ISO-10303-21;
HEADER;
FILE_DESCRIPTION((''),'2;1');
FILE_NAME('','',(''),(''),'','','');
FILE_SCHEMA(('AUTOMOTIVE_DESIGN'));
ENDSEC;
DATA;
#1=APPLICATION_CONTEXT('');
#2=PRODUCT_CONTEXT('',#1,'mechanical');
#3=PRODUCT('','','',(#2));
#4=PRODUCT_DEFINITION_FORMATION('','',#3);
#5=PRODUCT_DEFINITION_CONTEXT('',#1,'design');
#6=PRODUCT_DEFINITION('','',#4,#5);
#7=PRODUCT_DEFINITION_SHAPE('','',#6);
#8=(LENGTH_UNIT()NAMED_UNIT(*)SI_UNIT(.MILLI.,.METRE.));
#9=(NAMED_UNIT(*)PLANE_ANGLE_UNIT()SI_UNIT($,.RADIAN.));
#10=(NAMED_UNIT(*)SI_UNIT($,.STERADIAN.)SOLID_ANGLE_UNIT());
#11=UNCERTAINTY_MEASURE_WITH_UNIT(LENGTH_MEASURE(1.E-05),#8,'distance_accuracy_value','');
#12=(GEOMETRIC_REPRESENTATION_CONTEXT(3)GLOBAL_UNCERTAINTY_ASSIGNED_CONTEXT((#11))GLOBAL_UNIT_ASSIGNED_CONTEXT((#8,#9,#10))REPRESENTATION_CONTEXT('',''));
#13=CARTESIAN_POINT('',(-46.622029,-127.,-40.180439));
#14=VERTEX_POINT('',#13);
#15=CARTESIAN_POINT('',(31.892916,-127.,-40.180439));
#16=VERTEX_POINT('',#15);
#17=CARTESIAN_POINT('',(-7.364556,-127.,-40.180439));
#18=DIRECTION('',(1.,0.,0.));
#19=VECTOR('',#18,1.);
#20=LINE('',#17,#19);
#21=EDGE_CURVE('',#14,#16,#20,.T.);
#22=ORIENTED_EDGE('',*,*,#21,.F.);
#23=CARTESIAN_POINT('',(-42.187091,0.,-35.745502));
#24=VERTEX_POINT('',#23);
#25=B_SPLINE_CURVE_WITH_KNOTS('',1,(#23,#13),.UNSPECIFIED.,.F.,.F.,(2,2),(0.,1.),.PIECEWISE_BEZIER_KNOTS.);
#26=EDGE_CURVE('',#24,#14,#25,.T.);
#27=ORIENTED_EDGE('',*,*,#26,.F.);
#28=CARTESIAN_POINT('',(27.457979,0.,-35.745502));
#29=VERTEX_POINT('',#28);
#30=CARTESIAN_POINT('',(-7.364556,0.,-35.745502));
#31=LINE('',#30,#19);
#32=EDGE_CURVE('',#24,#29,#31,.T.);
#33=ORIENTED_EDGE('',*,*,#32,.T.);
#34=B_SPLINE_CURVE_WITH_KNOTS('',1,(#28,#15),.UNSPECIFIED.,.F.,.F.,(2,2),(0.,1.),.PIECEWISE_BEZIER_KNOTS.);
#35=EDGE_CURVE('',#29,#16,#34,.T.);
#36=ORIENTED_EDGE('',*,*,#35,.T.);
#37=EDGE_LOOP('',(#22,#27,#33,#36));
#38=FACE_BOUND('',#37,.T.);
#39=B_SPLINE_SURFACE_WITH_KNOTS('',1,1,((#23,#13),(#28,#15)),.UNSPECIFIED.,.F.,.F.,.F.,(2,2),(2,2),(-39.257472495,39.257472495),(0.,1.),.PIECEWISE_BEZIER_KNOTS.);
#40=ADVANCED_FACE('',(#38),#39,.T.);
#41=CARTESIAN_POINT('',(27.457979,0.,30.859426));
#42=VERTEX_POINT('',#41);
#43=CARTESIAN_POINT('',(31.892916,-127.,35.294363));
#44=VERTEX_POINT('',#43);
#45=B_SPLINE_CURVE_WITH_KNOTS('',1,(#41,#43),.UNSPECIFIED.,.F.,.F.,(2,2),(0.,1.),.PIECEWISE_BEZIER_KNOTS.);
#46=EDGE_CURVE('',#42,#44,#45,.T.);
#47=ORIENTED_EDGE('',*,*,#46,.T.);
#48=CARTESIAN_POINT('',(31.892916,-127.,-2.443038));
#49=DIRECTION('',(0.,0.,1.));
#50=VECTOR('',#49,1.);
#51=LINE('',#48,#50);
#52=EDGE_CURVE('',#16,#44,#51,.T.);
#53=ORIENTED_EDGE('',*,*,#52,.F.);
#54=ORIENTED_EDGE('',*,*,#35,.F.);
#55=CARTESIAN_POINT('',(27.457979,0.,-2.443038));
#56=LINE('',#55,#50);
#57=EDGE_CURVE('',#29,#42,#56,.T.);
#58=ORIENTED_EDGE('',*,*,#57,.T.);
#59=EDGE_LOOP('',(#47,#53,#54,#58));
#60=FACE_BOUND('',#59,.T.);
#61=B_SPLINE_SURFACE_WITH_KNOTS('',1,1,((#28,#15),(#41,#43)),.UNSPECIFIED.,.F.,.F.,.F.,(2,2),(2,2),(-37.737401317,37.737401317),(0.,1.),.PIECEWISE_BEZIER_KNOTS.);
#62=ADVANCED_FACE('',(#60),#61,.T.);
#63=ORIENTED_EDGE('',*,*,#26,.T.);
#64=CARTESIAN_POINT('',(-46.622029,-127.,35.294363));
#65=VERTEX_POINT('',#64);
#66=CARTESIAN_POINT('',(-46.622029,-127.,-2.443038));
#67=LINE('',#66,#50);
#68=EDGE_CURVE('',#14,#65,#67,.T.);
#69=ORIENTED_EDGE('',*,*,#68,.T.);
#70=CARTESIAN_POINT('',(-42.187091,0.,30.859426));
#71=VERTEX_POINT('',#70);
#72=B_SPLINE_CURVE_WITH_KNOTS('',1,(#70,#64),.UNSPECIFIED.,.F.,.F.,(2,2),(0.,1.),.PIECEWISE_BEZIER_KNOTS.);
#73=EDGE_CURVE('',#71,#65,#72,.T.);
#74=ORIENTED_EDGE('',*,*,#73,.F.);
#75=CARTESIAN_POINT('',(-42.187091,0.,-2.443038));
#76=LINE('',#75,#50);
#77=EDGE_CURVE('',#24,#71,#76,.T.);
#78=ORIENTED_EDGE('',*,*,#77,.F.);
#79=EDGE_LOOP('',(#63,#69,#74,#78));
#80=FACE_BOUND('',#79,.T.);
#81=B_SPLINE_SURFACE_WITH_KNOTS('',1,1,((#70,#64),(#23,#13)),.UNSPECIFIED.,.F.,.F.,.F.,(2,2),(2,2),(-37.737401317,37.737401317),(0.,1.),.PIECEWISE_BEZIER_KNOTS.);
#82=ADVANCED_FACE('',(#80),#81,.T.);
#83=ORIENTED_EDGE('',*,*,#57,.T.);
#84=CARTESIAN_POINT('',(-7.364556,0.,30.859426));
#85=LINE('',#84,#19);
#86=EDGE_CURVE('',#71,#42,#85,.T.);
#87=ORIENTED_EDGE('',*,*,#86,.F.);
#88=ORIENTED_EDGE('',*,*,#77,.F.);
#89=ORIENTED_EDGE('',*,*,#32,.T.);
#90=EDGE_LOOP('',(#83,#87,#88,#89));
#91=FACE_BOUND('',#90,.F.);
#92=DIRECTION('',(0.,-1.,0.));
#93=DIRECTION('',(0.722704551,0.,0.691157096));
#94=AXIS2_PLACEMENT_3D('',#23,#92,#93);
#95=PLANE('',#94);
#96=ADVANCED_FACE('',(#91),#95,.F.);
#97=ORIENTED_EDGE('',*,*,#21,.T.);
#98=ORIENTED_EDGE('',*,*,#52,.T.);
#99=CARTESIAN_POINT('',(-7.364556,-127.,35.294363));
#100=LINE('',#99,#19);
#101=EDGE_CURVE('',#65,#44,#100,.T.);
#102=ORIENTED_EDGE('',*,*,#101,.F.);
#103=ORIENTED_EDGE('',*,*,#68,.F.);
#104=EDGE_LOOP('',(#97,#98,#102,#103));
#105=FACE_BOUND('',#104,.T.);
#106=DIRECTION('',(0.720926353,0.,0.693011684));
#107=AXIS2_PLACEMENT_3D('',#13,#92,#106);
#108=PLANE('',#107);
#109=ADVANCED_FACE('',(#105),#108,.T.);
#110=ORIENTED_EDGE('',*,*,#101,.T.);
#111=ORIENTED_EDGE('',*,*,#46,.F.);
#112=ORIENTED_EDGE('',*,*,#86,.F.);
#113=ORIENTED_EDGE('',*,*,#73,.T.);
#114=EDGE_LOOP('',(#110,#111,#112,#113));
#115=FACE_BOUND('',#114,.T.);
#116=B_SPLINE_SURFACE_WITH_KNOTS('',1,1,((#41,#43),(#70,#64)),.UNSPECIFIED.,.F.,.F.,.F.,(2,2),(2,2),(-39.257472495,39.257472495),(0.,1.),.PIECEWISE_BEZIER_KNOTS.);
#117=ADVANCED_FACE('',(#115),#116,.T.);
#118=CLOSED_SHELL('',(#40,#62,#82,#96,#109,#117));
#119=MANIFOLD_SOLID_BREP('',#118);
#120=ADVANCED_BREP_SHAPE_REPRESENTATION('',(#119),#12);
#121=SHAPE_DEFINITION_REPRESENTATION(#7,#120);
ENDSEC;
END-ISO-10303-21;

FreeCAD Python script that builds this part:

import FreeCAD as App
import Part
import Sketcher
Q = App.Units.Quantity

doc = App.newDocument("Part")
body = doc.addObject("PartDesign::Body", "Body")

# Sketch on XZ plane
sketch1 = body.newObject("Sketcher::SketchObject", "Sketch")
sketch1.AttachmentSupport = (doc.getObject("XZ_Plane"), [""])
sketch1.MapMode = "FlatFace"
sketch1.addGeometry([
    Part.LineSegment(App.Vector(-42, 31, 0), App.Vector(-42, -36, 0)),
    Part.LineSegment(App.Vector(-42, -36, 0), App.Vector(27, -36, 0)),
    Part.LineSegment(App.Vector(27, -36, 0), App.Vector(27, 31, 0)),
    Part.LineSegment(App.Vector(27, 31, 0), App.Vector(-42, 31, 0)),
], False)
sketch1.addConstraint([
    Sketcher.Constraint("Coincident", 0, 2, 1, 1),
    Sketcher.Constraint("Coincident", 1, 2, 2, 1),
    Sketcher.Constraint("Coincident", 2, 2, 3, 1),
    Sketcher.Constraint("Coincident", 3, 2, 0, 1),
    Sketcher.Constraint("Vertical", 0),
    Sketcher.Constraint("Horizontal", 1),
    Sketcher.Constraint("Vertical", 2),
    Sketcher.Constraint("Horizontal", 3),
    Sketcher.Constraint("DistanceX", 1, 1, 1, 2, Q("69.64507 mm")),
    Sketcher.Constraint("DistanceY", 0, 2, -1, 1, Q("35.745502 mm")),
    Sketcher.Constraint("DistanceY", 0, 2, 0, 1, Q("66.604927 mm")),
    Sketcher.Constraint("DistanceX", 0, 2, -1, 1, Q("42.187091 mm")),
])
pad1 = body.newObject("PartDesign::Pad", "Pad")
pad1.Profile = sketch1
pad1.Length = Q("5 in")
pad1.TaperAngle = 2

doc.recompute()
